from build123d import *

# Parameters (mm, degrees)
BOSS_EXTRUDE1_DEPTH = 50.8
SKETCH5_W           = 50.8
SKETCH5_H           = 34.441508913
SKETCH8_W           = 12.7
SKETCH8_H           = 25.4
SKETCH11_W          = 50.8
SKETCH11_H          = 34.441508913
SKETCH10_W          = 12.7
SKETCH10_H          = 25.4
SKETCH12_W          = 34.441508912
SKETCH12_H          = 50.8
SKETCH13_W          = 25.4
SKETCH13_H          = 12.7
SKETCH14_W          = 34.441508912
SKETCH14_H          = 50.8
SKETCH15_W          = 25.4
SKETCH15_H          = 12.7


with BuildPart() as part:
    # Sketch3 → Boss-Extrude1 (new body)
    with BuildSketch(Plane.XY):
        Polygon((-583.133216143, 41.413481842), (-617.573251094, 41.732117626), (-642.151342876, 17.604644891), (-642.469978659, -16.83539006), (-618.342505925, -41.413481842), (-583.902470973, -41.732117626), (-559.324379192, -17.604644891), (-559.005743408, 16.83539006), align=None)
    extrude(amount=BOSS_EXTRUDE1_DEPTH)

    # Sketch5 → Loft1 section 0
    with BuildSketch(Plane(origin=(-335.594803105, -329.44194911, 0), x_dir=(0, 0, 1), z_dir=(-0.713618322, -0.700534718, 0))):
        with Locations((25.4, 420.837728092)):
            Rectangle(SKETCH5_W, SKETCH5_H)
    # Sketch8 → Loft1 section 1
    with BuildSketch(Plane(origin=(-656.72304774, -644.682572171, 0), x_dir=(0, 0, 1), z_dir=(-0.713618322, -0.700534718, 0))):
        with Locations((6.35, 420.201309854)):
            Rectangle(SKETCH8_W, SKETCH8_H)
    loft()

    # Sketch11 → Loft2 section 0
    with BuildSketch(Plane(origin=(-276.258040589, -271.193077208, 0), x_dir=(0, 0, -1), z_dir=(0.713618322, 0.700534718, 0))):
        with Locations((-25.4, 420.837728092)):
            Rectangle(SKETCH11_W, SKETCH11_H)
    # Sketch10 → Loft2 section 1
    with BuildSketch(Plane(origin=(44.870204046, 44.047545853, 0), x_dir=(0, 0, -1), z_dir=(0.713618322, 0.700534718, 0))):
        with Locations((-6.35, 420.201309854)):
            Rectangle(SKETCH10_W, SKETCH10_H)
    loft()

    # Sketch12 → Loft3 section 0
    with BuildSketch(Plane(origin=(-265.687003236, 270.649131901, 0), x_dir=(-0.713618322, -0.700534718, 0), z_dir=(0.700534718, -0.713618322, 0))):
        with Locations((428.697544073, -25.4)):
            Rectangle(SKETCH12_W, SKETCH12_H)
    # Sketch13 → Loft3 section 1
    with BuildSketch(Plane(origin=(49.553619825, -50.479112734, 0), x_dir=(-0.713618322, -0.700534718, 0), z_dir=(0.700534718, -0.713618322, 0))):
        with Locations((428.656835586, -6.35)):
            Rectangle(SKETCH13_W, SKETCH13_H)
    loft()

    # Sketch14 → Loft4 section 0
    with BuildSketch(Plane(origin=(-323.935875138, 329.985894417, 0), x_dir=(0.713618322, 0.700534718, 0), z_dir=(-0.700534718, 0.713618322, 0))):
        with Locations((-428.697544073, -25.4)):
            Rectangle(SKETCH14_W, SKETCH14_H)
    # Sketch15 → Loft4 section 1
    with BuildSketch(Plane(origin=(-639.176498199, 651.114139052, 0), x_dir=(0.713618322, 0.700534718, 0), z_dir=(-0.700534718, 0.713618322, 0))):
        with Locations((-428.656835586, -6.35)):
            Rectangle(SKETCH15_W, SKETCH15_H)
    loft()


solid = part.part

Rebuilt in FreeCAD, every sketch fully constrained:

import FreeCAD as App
import Part
import Sketcher
Q = App.Units.Quantity

doc = App.newDocument("Part")
body = doc.addObject("PartDesign::Body", "Body")

sketch1 = body.newObject("Sketcher::SketchObject", "Sketch")
sketch1.AttachmentSupport = (doc.getObject("XY_Plane"), [""])
sketch1.MapMode = "FlatFace"
sketch1.addGeometry(Part.LineSegment(App.Vector(-583, 41, 0), App.Vector(-618, 42, 0)), False)
sketch1.addGeometry(Part.LineSegment(App.Vector(-618, 42, 0), App.Vector(-642, 18, 0)), False)
sketch1.addGeometry(Part.LineSegment(App.Vector(-642, 18, 0), App.Vector(-642, -17, 0)), False)
sketch1.addGeometry(Part.LineSegment(App.Vector(-642, -17, 0), App.Vector(-618, -41, 0)), False)
sketch1.addGeometry(Part.LineSegment(App.Vector(-618, -41, 0), App.Vector(-584, -42, 0)), False)
sketch1.addGeometry(Part.LineSegment(App.Vector(-584, -42, 0), App.Vector(-559, -18, 0)), False)
sketch1.addGeometry(Part.LineSegment(App.Vector(-559, -18, 0), App.Vector(-559, 17, 0)), False)
sketch1.addGeometry(Part.LineSegment(App.Vector(-559, 17, 0), App.Vector(-583, 41, 0)), False)
sketch1.addConstraint(Sketcher.Constraint("Coincident", 0, 2, 1, 1))
sketch1.addConstraint(Sketcher.Constraint("Coincident", 1, 2, 2, 1))
sketch1.addConstraint(Sketcher.Constraint("Coincident", 2, 2, 3, 1))
sketch1.addConstraint(Sketcher.Constraint("Coincident", 3, 2, 4, 1))
sketch1.addConstraint(Sketcher.Constraint("Coincident", 4, 2, 5, 1))
sketch1.addConstraint(Sketcher.Constraint("Coincident", 5, 2, 6, 1))
sketch1.addConstraint(Sketcher.Constraint("Coincident", 6, 2, 7, 1))
sketch1.addConstraint(Sketcher.Constraint("Coincident", 7, 2, 0, 1))
sketch1.addConstraint(Sketcher.Constraint("Perpendicular", 0, 2))
sketch1.addConstraint(Sketcher.Constraint("Perpendicular", 1, 3))
sketch1.addConstraint(Sketcher.Constraint("Perpendicular", 2, 4))
sketch1.addConstraint(Sketcher.Constraint("Perpendicular", 3, 5))
sketch1.addConstraint(Sketcher.Constraint("Perpendicular", 4, 6))
sketch1.addConstraint(Sketcher.Constraint("Perpendicular", 5, 7))
sketch1.addConstraint(Sketcher.Constraint("Equal", 0, 1))
sketch1.addConstraint(Sketcher.Constraint("Equal", 1, 2))
sketch1.addConstraint(Sketcher.Constraint("Equal", 2, 3))
sketch1.addConstraint(Sketcher.Constraint("Equal", 3, 4))
sketch1.addConstraint(Sketcher.Constraint("Equal", 4, 5))
sketch1.addConstraint(Sketcher.Constraint("DistanceX", 6, 2, -1, 1, Q("22.0081001 in")))
sketch1.addConstraint(Sketcher.Constraint("DistanceY", 3, 2, 0, 2, Q("83.145599 mm")))
sketch1.addConstraint(Sketcher.Constraint("DistanceX", 0, 2, -1, 1, Q("617.573251 mm")))
sketch1.addConstraint(Sketcher.Constraint("DistanceX", 2, 2, -1, 1, Q("642.469979 mm")))
sketch1.addConstraint(Sketcher.Constraint("DistanceY", 2, 2, -1, 1, Q("16.83539 mm")))
pad1 = body.newObject("PartDesign::Pad", "Pad")
pad1.Profile = sketch1
pad1.Length = Q("2 in")

sketch2 = body.newObject("Sketcher::SketchObject", "Sketch001")
sketch2.Placement = App.Placement(App.Vector(-335.594803, -329.441949, 0), App.Rotation(App.Vector(0, 0, 1), App.Vector(-0.700534718, 0.713618322, 0), App.Vector(-0.713618322, -0.700534718, 0), "ZXY"))
sketch2.addGeometry(Part.LineSegment(App.Vector(0, 438, 0), App.Vector(0, 404, 0)), False)
sketch2.addGeometry(Part.LineSegment(App.Vector(0, 404, 0), App.Vector(51, 404, 0)), False)
sketch2.addGeometry(Part.LineSegment(App.Vector(51, 404, 0), App.Vector(51, 438, 0)), False)
sketch2.addGeometry(Part.LineSegment(App.Vector(51, 438, 0), App.Vector(0, 438, 0)), False)
sketch2.addConstraint(Sketcher.Constraint("Coincident", 0, 2, 1, 1))
sketch2.addConstraint(Sketcher.Constraint("Coincident", 1, 2, 2, 1))
sketch2.addConstraint(Sketcher.Constraint("Coincident", 2, 2, 3, 1))
sketch2.addConstraint(Sketcher.Constraint("Coincident", 3, 2, 0, 1))
sketch2.addConstraint(Sketcher.Constraint("Vertical", 0))
sketch2.addConstraint(Sketcher.Constraint("Horizontal", 1))
sketch2.addConstraint(Sketcher.Constraint("Vertical", 2))
sketch2.addConstraint(Sketcher.Constraint("Horizontal", 3))
sketch2.addConstraint(Sketcher.Constraint("PointOnObject", 0, 2, -2))
sketch2.addConstraint(Sketcher.Constraint("DistanceX", 1, 1, 1, 2, Q("2 in")))
sketch2.addConstraint(Sketcher.Constraint("DistanceY", 0, 2, 0, 1, Q("34.441509 mm")))
sketch2.addConstraint(Sketcher.Constraint("DistanceY", -1, 1, 0, 2, Q("403.616974 mm")))

sketch3 = body.newObject("Sketcher::SketchObject", "Sketch002")
sketch3.Placement = App.Placement(App.Vector(-656.723048, -644.682572, 0), App.Rotation(App.Vector(0, 0, 1), App.Vector(-0.700534718, 0.713618322, 0), App.Vector(-0.713618322, -0.700534718, 0), "ZXY"))
sketch3.addGeometry(Part.LineSegment(App.Vector(0, 433, 0), App.Vector(0, 408, 0)), False)
sketch3.addGeometry(Part.LineSegment(App.Vector(0, 408, 0), App.Vector(13, 408, 0)), False)
sketch3.addGeometry(Part.LineSegment(App.Vector(13, 408, 0), App.Vector(13, 433, 0)), False)
sketch3.addGeometry(Part.LineSegment(App.Vector(13, 433, 0), App.Vector(0, 433, 0)), False)
sketch3.addConstraint(Sketcher.Constraint("Coincident", 0, 2, 1, 1))
sketch3.addConstraint(Sketcher.Constraint("Coincident", 1, 2, 2, 1))
sketch3.addConstraint(Sketcher.Constraint("Coincident", 2, 2, 3, 1))
sketch3.addConstraint(Sketcher.Constraint("Coincident", 3, 2, 0, 1))
sketch3.addConstraint(Sketcher.Constraint("Vertical", 0))
sketch3.addConstraint(Sketcher.Constraint("Horizontal", 1))
sketch3.addConstraint(Sketcher.Constraint("Vertical", 2))
sketch3.addConstraint(Sketcher.Constraint("Horizontal", 3))
sketch3.addConstraint(Sketcher.Constraint("PointOnObject", 0, 2, -2))
sketch3.addConstraint(Sketcher.Constraint("DistanceY", 0, 2, 0, 1, Q("1 in")))
sketch3.addConstraint(Sketcher.Constraint("DistanceX", 1, 1, 1, 2, Q("0.5 in")))
sketch3.addConstraint(Sketcher.Constraint("DistanceY", -1, 1, 0, 2, Q("407.50131 mm")))

additiveloft = body.newObject("PartDesign::AdditiveLoft", "AdditiveLoft")
additiveloft.Profile = sketch2
additiveloft.Sections = [sketch3]

sketch4 = body.newObject("Sketcher::SketchObject", "Sketch003")
sketch4.Placement = App.Placement(App.Vector(-276.258041, -271.193077, 0), App.Rotation(App.Vector(0, 0, -1), App.Vector(-0.700534718, 0.713618322, 0), App.Vector(0.713618322, 0.700534718, 0), "ZXY"))
sketch4.addGeometry(Part.LineSegment(App.Vector(-51, 438, 0), App.Vector(-51, 404, 0)), False)
sketch4.addGeometry(Part.LineSegment(App.Vector(-51, 404, 0), App.Vector(0, 404, 0)), False)
sketch4.addGeometry(Part.LineSegment(App.Vector(0, 404, 0), App.Vector(0, 438, 0)), False)
sketch4.addGeometry(Part.LineSegment(App.Vector(0, 438, 0), App.Vector(-51, 438, 0)), False)
sketch4.addConstraint(Sketcher.Constraint("Coincident", 0, 2, 1, 1))
sketch4.addConstraint(Sketcher.Constraint("Coincident", 1, 2, 2, 1))
sketch4.addConstraint(Sketcher.Constraint("Coincident", 2, 2, 3, 1))
sketch4.addConstraint(Sketcher.Constraint("Coincident", 3, 2, 0, 1))
sketch4.addConstraint(Sketcher.Constraint("Vertical", 0))
sketch4.addConstraint(Sketcher.Constraint("Horizontal", 1))
sketch4.addConstraint(Sketcher.Constraint("Vertical", 2))
sketch4.addConstraint(Sketcher.Constraint("Horizontal", 3))
sketch4.addConstraint(Sketcher.Constraint("PointOnObject", 1, 2, -2))
sketch4.addConstraint(Sketcher.Constraint("DistanceX", 1, 1, 1, 2, Q("2 in")))
sketch4.addConstraint(Sketcher.Constraint("DistanceY", 0, 2, 0, 1, Q("34.441509 mm")))
sketch4.addConstraint(Sketcher.Constraint("DistanceY", -1, 1, 0, 2, Q("403.616974 mm")))

sketch5 = body.newObject("Sketcher::SketchObject", "Sketch004")
sketch5.Placement = App.Placement(App.Vector(44.870204, 44.047546, 0), App.Rotation(App.Vector(0, 0, -1), App.Vector(-0.700534718, 0.713618322, 0), App.Vector(0.713618322, 0.700534718, 0), "ZXY"))
sketch5.addGeometry(Part.LineSegment(App.Vector(-13, 433, 0), App.Vector(-13, 408, 0)), False)
sketch5.addGeometry(Part.LineSegment(App.Vector(-13, 408, 0), App.Vector(0, 408, 0)), False)
sketch5.addGeometry(Part.LineSegment(App.Vector(0, 408, 0), App.Vector(0, 433, 0)), False)
sketch5.addGeometry(Part.LineSegment(App.Vector(0, 433, 0), App.Vector(-13, 433, 0)), False)
sketch5.addConstraint(Sketcher.Constraint("Coincident", 0, 2, 1, 1))
sketch5.addConstraint(Sketcher.Constraint("Coincident", 1, 2, 2, 1))
sketch5.addConstraint(Sketcher.Constraint("Coincident", 2, 2, 3, 1))
sketch5.addConstraint(Sketcher.Constraint("Coincident", 3, 2, 0, 1))
sketch5.addConstraint(Sketcher.Constraint("Vertical", 0))
sketch5.addConstraint(Sketcher.Constraint("Horizontal", 1))
sketch5.addConstraint(Sketcher.Constraint("Vertical", 2))
sketch5.addConstraint(Sketcher.Constraint("Horizontal", 3))
sketch5.addConstraint(Sketcher.Constraint("PointOnObject", 1, 2, -2))
sketch5.addConstraint(Sketcher.Constraint("DistanceY", 0, 2, 0, 1, Q("1 in")))
sketch5.addConstraint(Sketcher.Constraint("DistanceX", 1, 1, 1, 2, Q("0.5 in")))
sketch5.addConstraint(Sketcher.Constraint("DistanceY", -1, 1, 0, 2, Q("407.50131 mm")))

additiveloft2 = body.newObject("PartDesign::AdditiveLoft", "AdditiveLoft001")
additiveloft2.Profile = sketch4
additiveloft2.Sections = [sketch5]

sketch6 = body.newObject("Sketcher::SketchObject", "Sketch005")
sketch6.Placement = App.Placement(App.Vector(-265.687003, 270.649132, 0), App.Rotation(App.Vector(-0.713618322, -0.700534718, 0), App.Vector(0, 0, -1.000000001), App.Vector(0.700534718, -0.713618322, 0), "ZXY"))
sketch6.addGeometry(Part.LineSegment(App.Vector(411, 0, 0), App.Vector(411, -51, 0)), False)
sketch6.addGeometry(Part.LineSegment(App.Vector(411, -51, 0), App.Vector(446, -51, 0)), False)
sketch6.addGeometry(Part.LineSegment(App.Vector(446, -51, 0), App.Vector(446, 0, 0)), False)
sketch6.addGeometry(Part.LineSegment(App.Vector(446, 0, 0), App.Vector(411, 0, 0)), False)
sketch6.addConstraint(Sketcher.Constraint("Coincident", 0, 2, 1, 1))
sketch6.addConstraint(Sketcher.Constraint("Coincident", 1, 2, 2, 1))
sketch6.addConstraint(Sketcher.Constraint("Coincident", 2, 2, 3, 1))
sketch6.addConstraint(Sketcher.Constraint("Coincident", 3, 2, 0, 1))
sketch6.addConstraint(Sketcher.Constraint("Vertical", 0))
sketch6.addConstraint(Sketcher.Constraint("Horizontal", 1))
sketch6.addConstraint(Sketcher.Constraint("Vertical", 2))
sketch6.addConstraint(Sketcher.Constraint("Horizontal", 3))
sketch6.addConstraint(Sketcher.Constraint("PointOnObject", 2, 2, -1))
sketch6.addConstraint(Sketcher.Constraint("DistanceY", 0, 2, 0, 1, Q("2 in")))
sketch6.addConstraint(Sketcher.Constraint("DistanceX", 1, 1, 1, 2, Q("34.441509 mm")))
sketch6.addConstraint(Sketcher.Constraint("DistanceX", -1, 1, 1, 2, Q("445.918299 mm")))

sketch7 = body.newObject("Sketcher::SketchObject", "Sketch006")
sketch7.Placement = App.Placement(App.Vector(49.55362, -50.479113, 0), App.Rotation(App.Vector(-0.713618322, -0.700534718, 0), App.Vector(0, 0, -1.000000001), App.Vector(0.700534718, -0.713618322, 0), "ZXY"))
sketch7.addGeometry(Part.LineSegment(App.Vector(416, 0, 0), App.Vector(416, -13, 0)), False)
sketch7.addGeometry(Part.LineSegment(App.Vector(416, -13, 0), App.Vector(441, -13, 0)), False)
sketch7.addGeometry(Part.LineSegment(App.Vector(441, -13, 0), App.Vector(441, 0, 0)), False)
sketch7.addGeometry(Part.LineSegment(App.Vector(441, 0, 0), App.Vector(416, 0, 0)), False)
sketch7.addConstraint(Sketcher.Constraint("Coincident", 0, 2, 1, 1))
sketch7.addConstraint(Sketcher.Constraint("Coincident", 1, 2, 2, 1))
sketch7.addConstraint(Sketcher.Constraint("Coincident", 2, 2, 3, 1))
sketch7.addConstraint(Sketcher.Constraint("Coincident", 3, 2, 0, 1))
sketch7.addConstraint(Sketcher.Constraint("Vertical", 0))
sketch7.addConstraint(Sketcher.Constraint("Horizontal", 1))
sketch7.addConstraint(Sketcher.Constraint("Vertical", 2))
sketch7.addConstraint(Sketcher.Constraint("Horizontal", 3))
sketch7.addConstraint(Sketcher.Constraint("PointOnObject", 2, 2, -1))
sketch7.addConstraint(Sketcher.Constraint("DistanceX", 1, 1, 1, 2, Q("1 in")))
sketch7.addConstraint(Sketcher.Constraint("DistanceY", 0, 2, 0, 1, Q("0.5 in")))
sketch7.addConstraint(Sketcher.Constraint("DistanceX", -1, 1, 0, 2, Q("415.956836 mm")))

additiveloft3 = body.newObject("PartDesign::AdditiveLoft", "AdditiveLoft002")
additiveloft3.Profile = sketch6
additiveloft3.Sections = [sketch7]

sketch8 = body.newObject("Sketcher::SketchObject", "Sketch007")
sketch8.Placement = App.Placement(App.Vector(-323.935875, 329.985894, 0), App.Rotation(App.Vector(0.713618322, 0.700534718, 0), App.Vector(0, 0, -1.000000001), App.Vector(-0.700534718, 0.713618322, 0), "ZXY"))
sketch8.addGeometry(Part.LineSegment(App.Vector(-446, 0, 0), App.Vector(-446, -51, 0)), False)
sketch8.addGeometry(Part.LineSegment(App.Vector(-446, -51, 0), App.Vector(-411, -51, 0)), False)
sketch8.addGeometry(Part.LineSegment(App.Vector(-411, -51, 0), App.Vector(-411, 0, 0)), False)
sketch8.addGeometry(Part.LineSegment(App.Vector(-411, 0, 0), App.Vector(-446, 0, 0)), False)
sketch8.addConstraint(Sketcher.Constraint("Coincident", 0, 2, 1, 1))
sketch8.addConstraint(Sketcher.Constraint("Coincident", 1, 2, 2, 1))
sketch8.addConstraint(Sketcher.Constraint("Coincident", 2, 2, 3, 1))
sketch8.addConstraint(Sketcher.Constraint("Coincident", 3, 2, 0, 1))
sketch8.addConstraint(Sketcher.Constraint("Vertical", 0))
sketch8.addConstraint(Sketcher.Constraint("Horizontal", 1))
sketch8.addConstraint(Sketcher.Constraint("Vertical", 2))
sketch8.addConstraint(Sketcher.Constraint("Horizontal", 3))
sketch8.addConstraint(Sketcher.Constraint("PointOnObject", 2, 2, -1))
sketch8.addConstraint(Sketcher.Constraint("DistanceY", 0, 2, 0, 1, Q("2 in")))
sketch8.addConstraint(Sketcher.Constraint("DistanceX", 1, 1, 1, 2, Q("34.441509 mm")))
sketch8.addConstraint(Sketcher.Constraint("DistanceX", 0, 2, -1, 1, Q("445.918299 mm")))

sketch9 = body.newObject("Sketcher::SketchObject", "Sketch008")
sketch9.Placement = App.Placement(App.Vector(-639.176498, 651.114139, 0), App.Rotation(App.Vector(0.713618322, 0.700534718, 0), App.Vector(0, 0, -1.000000001), App.Vector(-0.700534718, 0.713618322, 0), "ZXY"))
sketch9.addGeometry(Part.LineSegment(App.Vector(-441, 0, 0), App.Vector(-441, -13, 0)), False)
sketch9.addGeometry(Part.LineSegment(App.Vector(-441, -13, 0), App.Vector(-416, -13, 0)), False)
sketch9.addGeometry(Part.LineSegment(App.Vector(-416, -13, 0), App.Vector(-416, 0, 0)), False)
sketch9.addGeometry(Part.LineSegment(App.Vector(-416, 0, 0), App.Vector(-441, 0, 0)), False)
sketch9.addConstraint(Sketcher.Constraint("Coincident", 0, 2, 1, 1))
sketch9.addConstraint(Sketcher.Constraint("Coincident", 1, 2, 2, 1))
sketch9.addConstraint(Sketcher.Constraint("Coincident", 2, 2, 3, 1))
sketch9.addConstraint(Sketcher.Constraint("Coincident", 3, 2, 0, 1))
sketch9.addConstraint(Sketcher.Constraint("Vertical", 0))
sketch9.addConstraint(Sketcher.Constraint("Horizontal", 1))
sketch9.addConstraint(Sketcher.Constraint("Vertical", 2))
sketch9.addConstraint(Sketcher.Constraint("Horizontal", 3))
sketch9.addConstraint(Sketcher.Constraint("PointOnObject", 2, 2, -1))
sketch9.addConstraint(Sketcher.Constraint("DistanceX", 1, 1, 1, 2, Q("1 in")))
sketch9.addConstraint(Sketcher.Constraint("DistanceY", 0, 2, 0, 1, Q("0.5 in")))
sketch9.addConstraint(Sketcher.Constraint("DistanceX", 0, 2, -1, 1, Q("441.356836 mm")))

additiveloft4 = body.newObject("PartDesign::AdditiveLoft", "AdditiveLoft003")
additiveloft4.Profile = sketch8
additiveloft4.Sections = [sketch9]

doc.recompute()
